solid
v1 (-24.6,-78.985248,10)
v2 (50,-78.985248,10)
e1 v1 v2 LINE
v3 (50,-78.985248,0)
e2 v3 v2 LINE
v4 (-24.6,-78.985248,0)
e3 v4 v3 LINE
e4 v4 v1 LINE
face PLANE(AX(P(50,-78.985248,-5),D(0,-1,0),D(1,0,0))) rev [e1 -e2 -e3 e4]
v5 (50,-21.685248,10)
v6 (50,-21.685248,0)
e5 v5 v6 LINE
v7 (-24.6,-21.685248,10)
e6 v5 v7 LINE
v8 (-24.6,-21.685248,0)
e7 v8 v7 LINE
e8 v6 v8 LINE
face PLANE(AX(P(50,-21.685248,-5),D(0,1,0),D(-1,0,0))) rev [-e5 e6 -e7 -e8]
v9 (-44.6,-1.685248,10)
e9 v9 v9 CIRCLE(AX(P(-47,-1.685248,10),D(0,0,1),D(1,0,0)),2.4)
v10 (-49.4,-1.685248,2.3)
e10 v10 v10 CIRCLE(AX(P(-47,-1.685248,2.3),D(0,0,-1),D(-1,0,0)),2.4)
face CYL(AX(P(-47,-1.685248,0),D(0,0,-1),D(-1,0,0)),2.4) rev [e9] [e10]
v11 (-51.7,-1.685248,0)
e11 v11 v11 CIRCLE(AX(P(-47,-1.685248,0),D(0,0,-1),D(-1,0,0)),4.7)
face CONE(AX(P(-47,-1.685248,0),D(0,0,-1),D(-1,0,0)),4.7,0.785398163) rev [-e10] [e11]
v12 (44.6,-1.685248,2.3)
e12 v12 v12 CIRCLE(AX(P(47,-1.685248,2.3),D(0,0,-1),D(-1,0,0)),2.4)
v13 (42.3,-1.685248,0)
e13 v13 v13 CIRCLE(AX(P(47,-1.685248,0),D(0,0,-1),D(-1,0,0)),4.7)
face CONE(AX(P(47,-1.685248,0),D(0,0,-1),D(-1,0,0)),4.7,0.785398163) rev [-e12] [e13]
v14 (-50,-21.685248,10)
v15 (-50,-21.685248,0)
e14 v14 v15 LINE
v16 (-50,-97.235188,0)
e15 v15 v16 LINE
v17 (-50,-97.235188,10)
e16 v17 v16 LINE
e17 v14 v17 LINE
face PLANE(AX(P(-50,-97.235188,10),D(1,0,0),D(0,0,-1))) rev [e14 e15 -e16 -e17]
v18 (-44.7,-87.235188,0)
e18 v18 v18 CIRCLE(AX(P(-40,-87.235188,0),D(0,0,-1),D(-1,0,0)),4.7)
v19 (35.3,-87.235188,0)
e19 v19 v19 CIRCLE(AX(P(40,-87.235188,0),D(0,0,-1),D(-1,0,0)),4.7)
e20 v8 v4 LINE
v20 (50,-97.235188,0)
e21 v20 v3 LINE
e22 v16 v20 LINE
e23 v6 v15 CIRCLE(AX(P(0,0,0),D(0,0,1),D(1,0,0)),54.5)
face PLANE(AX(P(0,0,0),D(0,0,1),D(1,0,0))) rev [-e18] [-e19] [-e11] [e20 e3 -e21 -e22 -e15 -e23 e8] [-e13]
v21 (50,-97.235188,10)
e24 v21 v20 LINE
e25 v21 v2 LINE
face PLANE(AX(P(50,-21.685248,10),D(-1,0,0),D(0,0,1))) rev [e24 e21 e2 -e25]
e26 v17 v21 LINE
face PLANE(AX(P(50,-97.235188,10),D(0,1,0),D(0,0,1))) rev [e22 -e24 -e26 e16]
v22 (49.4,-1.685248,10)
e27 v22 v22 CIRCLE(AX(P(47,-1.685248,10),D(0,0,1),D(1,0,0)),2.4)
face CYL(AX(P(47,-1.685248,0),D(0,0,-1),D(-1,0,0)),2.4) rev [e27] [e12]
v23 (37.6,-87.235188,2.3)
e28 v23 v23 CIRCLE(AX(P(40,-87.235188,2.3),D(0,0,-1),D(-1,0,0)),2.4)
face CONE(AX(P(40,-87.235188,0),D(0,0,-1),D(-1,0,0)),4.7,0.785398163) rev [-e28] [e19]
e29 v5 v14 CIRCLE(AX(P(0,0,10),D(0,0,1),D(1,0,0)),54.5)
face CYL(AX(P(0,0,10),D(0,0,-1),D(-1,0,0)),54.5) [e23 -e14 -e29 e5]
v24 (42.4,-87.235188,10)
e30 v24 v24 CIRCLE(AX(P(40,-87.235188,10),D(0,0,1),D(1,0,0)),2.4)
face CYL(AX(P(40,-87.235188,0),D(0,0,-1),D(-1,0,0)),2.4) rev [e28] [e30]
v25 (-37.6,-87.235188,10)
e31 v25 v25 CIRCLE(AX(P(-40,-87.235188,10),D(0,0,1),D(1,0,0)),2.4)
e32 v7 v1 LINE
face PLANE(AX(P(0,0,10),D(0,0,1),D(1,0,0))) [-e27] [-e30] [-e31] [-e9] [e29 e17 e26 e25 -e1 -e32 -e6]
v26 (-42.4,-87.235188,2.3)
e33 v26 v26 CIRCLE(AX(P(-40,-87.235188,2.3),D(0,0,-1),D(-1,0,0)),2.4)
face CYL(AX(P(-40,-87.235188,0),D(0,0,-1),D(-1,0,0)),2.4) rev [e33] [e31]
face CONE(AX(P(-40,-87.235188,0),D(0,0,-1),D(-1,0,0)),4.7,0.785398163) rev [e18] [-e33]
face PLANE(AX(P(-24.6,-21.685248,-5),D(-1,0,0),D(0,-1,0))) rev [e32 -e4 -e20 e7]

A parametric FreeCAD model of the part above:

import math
import FreeCAD as App
import Part
import Sketcher
from FreeCAD import Vector

doc = App.newDocument("Part")
body = doc.addObject("PartDesign::Body", "Body")

# Sketch on XY plane
sketch1 = doc.addObject("Sketcher::SketchObject", "Sketch")
body.addObject(sketch1)
sketch1.AttachmentSupport = (doc.XY_Plane, [""])
sketch1.MapMode = "FlatFace"
sketch1.addGeometry([
    Part.LineSegment(Vector(50, -97, 0), Vector(50, -22, 0)),
    Part.ArcOfCircle(Part.Circle(Vector(0, 0, 0), Vector(0, 0, 1), 54), math.radians(-23), math.radians(203)),
    Part.LineSegment(Vector(-50, -22, 0), Vector(-50, -97, 0)),
    Part.LineSegment(Vector(-50, -97, 0), Vector(50, -97, 0)),
], False)
sketch1.addConstraint([
    Sketcher.Constraint("Coincident", 0, 2, 1, 1),
    Sketcher.Constraint("Coincident", 1, 2, 2, 1),
    Sketcher.Constraint("Coincident", 2, 2, 3, 1),
    Sketcher.Constraint("Coincident", 3, 2, 0, 1),
    Sketcher.Constraint("Vertical", 0),
    Sketcher.Constraint("Vertical", 2),
    Sketcher.Constraint("Horizontal", 3),
    Sketcher.Constraint("Coincident", 1, 3, -1, 1),
    Sketcher.Constraint("Horizontal", 0, 2, 1, 2),
    Sketcher.Constraint("Radius", 1, 54.5),
    Sketcher.Constraint("DistanceX", 3, 1, 3, 2, 100.0),
    Sketcher.Constraint("DistanceY", 0, 1, 0, 2, 75.54994),
])
pad1 = doc.addObject("PartDesign::Pad", "Pad")
body.addObject(pad1)
pad1.Profile = sketch1
pad1.Length = 10

# Sketch on XY plane
sketch2 = doc.addObject("Sketcher::SketchObject", "Sketch001")
body.addObject(sketch2)
sketch2.AttachmentSupport = (doc.XY_Plane, [""])
sketch2.MapMode = "FlatFace"
sketch2.addGeometry([
    Part.Circle(Vector(47, -1.7, 0), Vector(0, 0, 1), 2.4),
    Part.Circle(Vector(-47, -1.7, 0), Vector(0, 0, 1), 2.4),
    Part.Circle(Vector(-40, -87.2, 0), Vector(0, 0, 1), 2.4),
    Part.Circle(Vector(40, -87.2, 0), Vector(0, 0, 1), 2.4),
], False)
sketch2.addConstraint([
    Sketcher.Constraint("Equal", 0, 1),
    Sketcher.Constraint("Equal", 1, 2),
    Sketcher.Constraint("Equal", 2, 3),
    Sketcher.Constraint("Symmetric", 0, 3, 1, 3, -2),
    Sketcher.Constraint("Symmetric", 2, 3, 3, 3, -2),
    Sketcher.Constraint("Diameter", 0, 4.8),
    Sketcher.Constraint("DistanceX", -1, 1, 0, 3, 47.0),
    Sketcher.Constraint("DistanceX", 2, 3, -1, 1, 40.0),
    Sketcher.Constraint("DistanceY", 0, 3, -1, 1, 1.685248),
    Sketcher.Constraint("DistanceY", 2, 3, -1, 1, 87.235188),
])
doc.recompute()
hole = doc.addObject("PartDesign::Hole", "Hole")
body.addObject(hole)
hole.Profile = sketch2
hole.ThreadType = "None"
hole.Diameter = 4.8
hole.DepthType = "ThroughAll"
hole.HoleCutType = "Countersink"
hole.HoleCutDiameter = 9.4
hole.HoleCutCountersinkAngle = 90
hole.Reversed = True

# Sketch on XY plane
sketch3 = doc.addObject("Sketcher::SketchObject", "Sketch002")
body.addObject(sketch3)
sketch3.AttachmentSupport = (doc.XY_Plane, [""])
sketch3.MapMode = "FlatFace"
sketch3.AttachmentOffset = App.Placement(Vector(0, 0, 10), App.Rotation())
sketch3.addGeometry([
    Part.LineSegment(Vector(-25, -22, 0), Vector(-25, -79, 0)),
    Part.LineSegment(Vector(-25, -79, 0), Vector(50, -79, 0)),
    Part.LineSegment(Vector(50, -79, 0), Vector(50, -22, 0)),
    Part.LineSegment(Vector(50, -22, 0), Vector(-25, -22, 0)),
], False)
sketch3.addConstraint([
    Sketcher.Constraint("Coincident", 0, 2, 1, 1),
    Sketcher.Constraint("Coincident", 1, 2, 2, 1),
    Sketcher.Constraint("Coincident", 2, 2, 3, 1),
    Sketcher.Constraint("Coincident", 3, 2, 0, 1),
    Sketcher.Constraint("Vertical", 0),
    Sketcher.Constraint("Horizontal", 1),
    Sketcher.Constraint("Vertical", 2),
    Sketcher.Constraint("Horizontal", 3),
    Sketcher.Constraint("DistanceX", 1, 1, 1, 2, 74.6),
    Sketcher.Constraint("DistanceY", 0, 2, 0, 1, 57.3),
    Sketcher.Constraint("DistanceX", -1, 1, 1, 2, 50.0),
    Sketcher.Constraint("DistanceY", 0, 2, -1, 1, 78.985248),
])
pocket1 = doc.addObject("PartDesign::Pocket", "Pocket")
body.addObject(pocket1)
pocket1.Profile = sketch3
pocket1.Length = 15

doc.recompute()
